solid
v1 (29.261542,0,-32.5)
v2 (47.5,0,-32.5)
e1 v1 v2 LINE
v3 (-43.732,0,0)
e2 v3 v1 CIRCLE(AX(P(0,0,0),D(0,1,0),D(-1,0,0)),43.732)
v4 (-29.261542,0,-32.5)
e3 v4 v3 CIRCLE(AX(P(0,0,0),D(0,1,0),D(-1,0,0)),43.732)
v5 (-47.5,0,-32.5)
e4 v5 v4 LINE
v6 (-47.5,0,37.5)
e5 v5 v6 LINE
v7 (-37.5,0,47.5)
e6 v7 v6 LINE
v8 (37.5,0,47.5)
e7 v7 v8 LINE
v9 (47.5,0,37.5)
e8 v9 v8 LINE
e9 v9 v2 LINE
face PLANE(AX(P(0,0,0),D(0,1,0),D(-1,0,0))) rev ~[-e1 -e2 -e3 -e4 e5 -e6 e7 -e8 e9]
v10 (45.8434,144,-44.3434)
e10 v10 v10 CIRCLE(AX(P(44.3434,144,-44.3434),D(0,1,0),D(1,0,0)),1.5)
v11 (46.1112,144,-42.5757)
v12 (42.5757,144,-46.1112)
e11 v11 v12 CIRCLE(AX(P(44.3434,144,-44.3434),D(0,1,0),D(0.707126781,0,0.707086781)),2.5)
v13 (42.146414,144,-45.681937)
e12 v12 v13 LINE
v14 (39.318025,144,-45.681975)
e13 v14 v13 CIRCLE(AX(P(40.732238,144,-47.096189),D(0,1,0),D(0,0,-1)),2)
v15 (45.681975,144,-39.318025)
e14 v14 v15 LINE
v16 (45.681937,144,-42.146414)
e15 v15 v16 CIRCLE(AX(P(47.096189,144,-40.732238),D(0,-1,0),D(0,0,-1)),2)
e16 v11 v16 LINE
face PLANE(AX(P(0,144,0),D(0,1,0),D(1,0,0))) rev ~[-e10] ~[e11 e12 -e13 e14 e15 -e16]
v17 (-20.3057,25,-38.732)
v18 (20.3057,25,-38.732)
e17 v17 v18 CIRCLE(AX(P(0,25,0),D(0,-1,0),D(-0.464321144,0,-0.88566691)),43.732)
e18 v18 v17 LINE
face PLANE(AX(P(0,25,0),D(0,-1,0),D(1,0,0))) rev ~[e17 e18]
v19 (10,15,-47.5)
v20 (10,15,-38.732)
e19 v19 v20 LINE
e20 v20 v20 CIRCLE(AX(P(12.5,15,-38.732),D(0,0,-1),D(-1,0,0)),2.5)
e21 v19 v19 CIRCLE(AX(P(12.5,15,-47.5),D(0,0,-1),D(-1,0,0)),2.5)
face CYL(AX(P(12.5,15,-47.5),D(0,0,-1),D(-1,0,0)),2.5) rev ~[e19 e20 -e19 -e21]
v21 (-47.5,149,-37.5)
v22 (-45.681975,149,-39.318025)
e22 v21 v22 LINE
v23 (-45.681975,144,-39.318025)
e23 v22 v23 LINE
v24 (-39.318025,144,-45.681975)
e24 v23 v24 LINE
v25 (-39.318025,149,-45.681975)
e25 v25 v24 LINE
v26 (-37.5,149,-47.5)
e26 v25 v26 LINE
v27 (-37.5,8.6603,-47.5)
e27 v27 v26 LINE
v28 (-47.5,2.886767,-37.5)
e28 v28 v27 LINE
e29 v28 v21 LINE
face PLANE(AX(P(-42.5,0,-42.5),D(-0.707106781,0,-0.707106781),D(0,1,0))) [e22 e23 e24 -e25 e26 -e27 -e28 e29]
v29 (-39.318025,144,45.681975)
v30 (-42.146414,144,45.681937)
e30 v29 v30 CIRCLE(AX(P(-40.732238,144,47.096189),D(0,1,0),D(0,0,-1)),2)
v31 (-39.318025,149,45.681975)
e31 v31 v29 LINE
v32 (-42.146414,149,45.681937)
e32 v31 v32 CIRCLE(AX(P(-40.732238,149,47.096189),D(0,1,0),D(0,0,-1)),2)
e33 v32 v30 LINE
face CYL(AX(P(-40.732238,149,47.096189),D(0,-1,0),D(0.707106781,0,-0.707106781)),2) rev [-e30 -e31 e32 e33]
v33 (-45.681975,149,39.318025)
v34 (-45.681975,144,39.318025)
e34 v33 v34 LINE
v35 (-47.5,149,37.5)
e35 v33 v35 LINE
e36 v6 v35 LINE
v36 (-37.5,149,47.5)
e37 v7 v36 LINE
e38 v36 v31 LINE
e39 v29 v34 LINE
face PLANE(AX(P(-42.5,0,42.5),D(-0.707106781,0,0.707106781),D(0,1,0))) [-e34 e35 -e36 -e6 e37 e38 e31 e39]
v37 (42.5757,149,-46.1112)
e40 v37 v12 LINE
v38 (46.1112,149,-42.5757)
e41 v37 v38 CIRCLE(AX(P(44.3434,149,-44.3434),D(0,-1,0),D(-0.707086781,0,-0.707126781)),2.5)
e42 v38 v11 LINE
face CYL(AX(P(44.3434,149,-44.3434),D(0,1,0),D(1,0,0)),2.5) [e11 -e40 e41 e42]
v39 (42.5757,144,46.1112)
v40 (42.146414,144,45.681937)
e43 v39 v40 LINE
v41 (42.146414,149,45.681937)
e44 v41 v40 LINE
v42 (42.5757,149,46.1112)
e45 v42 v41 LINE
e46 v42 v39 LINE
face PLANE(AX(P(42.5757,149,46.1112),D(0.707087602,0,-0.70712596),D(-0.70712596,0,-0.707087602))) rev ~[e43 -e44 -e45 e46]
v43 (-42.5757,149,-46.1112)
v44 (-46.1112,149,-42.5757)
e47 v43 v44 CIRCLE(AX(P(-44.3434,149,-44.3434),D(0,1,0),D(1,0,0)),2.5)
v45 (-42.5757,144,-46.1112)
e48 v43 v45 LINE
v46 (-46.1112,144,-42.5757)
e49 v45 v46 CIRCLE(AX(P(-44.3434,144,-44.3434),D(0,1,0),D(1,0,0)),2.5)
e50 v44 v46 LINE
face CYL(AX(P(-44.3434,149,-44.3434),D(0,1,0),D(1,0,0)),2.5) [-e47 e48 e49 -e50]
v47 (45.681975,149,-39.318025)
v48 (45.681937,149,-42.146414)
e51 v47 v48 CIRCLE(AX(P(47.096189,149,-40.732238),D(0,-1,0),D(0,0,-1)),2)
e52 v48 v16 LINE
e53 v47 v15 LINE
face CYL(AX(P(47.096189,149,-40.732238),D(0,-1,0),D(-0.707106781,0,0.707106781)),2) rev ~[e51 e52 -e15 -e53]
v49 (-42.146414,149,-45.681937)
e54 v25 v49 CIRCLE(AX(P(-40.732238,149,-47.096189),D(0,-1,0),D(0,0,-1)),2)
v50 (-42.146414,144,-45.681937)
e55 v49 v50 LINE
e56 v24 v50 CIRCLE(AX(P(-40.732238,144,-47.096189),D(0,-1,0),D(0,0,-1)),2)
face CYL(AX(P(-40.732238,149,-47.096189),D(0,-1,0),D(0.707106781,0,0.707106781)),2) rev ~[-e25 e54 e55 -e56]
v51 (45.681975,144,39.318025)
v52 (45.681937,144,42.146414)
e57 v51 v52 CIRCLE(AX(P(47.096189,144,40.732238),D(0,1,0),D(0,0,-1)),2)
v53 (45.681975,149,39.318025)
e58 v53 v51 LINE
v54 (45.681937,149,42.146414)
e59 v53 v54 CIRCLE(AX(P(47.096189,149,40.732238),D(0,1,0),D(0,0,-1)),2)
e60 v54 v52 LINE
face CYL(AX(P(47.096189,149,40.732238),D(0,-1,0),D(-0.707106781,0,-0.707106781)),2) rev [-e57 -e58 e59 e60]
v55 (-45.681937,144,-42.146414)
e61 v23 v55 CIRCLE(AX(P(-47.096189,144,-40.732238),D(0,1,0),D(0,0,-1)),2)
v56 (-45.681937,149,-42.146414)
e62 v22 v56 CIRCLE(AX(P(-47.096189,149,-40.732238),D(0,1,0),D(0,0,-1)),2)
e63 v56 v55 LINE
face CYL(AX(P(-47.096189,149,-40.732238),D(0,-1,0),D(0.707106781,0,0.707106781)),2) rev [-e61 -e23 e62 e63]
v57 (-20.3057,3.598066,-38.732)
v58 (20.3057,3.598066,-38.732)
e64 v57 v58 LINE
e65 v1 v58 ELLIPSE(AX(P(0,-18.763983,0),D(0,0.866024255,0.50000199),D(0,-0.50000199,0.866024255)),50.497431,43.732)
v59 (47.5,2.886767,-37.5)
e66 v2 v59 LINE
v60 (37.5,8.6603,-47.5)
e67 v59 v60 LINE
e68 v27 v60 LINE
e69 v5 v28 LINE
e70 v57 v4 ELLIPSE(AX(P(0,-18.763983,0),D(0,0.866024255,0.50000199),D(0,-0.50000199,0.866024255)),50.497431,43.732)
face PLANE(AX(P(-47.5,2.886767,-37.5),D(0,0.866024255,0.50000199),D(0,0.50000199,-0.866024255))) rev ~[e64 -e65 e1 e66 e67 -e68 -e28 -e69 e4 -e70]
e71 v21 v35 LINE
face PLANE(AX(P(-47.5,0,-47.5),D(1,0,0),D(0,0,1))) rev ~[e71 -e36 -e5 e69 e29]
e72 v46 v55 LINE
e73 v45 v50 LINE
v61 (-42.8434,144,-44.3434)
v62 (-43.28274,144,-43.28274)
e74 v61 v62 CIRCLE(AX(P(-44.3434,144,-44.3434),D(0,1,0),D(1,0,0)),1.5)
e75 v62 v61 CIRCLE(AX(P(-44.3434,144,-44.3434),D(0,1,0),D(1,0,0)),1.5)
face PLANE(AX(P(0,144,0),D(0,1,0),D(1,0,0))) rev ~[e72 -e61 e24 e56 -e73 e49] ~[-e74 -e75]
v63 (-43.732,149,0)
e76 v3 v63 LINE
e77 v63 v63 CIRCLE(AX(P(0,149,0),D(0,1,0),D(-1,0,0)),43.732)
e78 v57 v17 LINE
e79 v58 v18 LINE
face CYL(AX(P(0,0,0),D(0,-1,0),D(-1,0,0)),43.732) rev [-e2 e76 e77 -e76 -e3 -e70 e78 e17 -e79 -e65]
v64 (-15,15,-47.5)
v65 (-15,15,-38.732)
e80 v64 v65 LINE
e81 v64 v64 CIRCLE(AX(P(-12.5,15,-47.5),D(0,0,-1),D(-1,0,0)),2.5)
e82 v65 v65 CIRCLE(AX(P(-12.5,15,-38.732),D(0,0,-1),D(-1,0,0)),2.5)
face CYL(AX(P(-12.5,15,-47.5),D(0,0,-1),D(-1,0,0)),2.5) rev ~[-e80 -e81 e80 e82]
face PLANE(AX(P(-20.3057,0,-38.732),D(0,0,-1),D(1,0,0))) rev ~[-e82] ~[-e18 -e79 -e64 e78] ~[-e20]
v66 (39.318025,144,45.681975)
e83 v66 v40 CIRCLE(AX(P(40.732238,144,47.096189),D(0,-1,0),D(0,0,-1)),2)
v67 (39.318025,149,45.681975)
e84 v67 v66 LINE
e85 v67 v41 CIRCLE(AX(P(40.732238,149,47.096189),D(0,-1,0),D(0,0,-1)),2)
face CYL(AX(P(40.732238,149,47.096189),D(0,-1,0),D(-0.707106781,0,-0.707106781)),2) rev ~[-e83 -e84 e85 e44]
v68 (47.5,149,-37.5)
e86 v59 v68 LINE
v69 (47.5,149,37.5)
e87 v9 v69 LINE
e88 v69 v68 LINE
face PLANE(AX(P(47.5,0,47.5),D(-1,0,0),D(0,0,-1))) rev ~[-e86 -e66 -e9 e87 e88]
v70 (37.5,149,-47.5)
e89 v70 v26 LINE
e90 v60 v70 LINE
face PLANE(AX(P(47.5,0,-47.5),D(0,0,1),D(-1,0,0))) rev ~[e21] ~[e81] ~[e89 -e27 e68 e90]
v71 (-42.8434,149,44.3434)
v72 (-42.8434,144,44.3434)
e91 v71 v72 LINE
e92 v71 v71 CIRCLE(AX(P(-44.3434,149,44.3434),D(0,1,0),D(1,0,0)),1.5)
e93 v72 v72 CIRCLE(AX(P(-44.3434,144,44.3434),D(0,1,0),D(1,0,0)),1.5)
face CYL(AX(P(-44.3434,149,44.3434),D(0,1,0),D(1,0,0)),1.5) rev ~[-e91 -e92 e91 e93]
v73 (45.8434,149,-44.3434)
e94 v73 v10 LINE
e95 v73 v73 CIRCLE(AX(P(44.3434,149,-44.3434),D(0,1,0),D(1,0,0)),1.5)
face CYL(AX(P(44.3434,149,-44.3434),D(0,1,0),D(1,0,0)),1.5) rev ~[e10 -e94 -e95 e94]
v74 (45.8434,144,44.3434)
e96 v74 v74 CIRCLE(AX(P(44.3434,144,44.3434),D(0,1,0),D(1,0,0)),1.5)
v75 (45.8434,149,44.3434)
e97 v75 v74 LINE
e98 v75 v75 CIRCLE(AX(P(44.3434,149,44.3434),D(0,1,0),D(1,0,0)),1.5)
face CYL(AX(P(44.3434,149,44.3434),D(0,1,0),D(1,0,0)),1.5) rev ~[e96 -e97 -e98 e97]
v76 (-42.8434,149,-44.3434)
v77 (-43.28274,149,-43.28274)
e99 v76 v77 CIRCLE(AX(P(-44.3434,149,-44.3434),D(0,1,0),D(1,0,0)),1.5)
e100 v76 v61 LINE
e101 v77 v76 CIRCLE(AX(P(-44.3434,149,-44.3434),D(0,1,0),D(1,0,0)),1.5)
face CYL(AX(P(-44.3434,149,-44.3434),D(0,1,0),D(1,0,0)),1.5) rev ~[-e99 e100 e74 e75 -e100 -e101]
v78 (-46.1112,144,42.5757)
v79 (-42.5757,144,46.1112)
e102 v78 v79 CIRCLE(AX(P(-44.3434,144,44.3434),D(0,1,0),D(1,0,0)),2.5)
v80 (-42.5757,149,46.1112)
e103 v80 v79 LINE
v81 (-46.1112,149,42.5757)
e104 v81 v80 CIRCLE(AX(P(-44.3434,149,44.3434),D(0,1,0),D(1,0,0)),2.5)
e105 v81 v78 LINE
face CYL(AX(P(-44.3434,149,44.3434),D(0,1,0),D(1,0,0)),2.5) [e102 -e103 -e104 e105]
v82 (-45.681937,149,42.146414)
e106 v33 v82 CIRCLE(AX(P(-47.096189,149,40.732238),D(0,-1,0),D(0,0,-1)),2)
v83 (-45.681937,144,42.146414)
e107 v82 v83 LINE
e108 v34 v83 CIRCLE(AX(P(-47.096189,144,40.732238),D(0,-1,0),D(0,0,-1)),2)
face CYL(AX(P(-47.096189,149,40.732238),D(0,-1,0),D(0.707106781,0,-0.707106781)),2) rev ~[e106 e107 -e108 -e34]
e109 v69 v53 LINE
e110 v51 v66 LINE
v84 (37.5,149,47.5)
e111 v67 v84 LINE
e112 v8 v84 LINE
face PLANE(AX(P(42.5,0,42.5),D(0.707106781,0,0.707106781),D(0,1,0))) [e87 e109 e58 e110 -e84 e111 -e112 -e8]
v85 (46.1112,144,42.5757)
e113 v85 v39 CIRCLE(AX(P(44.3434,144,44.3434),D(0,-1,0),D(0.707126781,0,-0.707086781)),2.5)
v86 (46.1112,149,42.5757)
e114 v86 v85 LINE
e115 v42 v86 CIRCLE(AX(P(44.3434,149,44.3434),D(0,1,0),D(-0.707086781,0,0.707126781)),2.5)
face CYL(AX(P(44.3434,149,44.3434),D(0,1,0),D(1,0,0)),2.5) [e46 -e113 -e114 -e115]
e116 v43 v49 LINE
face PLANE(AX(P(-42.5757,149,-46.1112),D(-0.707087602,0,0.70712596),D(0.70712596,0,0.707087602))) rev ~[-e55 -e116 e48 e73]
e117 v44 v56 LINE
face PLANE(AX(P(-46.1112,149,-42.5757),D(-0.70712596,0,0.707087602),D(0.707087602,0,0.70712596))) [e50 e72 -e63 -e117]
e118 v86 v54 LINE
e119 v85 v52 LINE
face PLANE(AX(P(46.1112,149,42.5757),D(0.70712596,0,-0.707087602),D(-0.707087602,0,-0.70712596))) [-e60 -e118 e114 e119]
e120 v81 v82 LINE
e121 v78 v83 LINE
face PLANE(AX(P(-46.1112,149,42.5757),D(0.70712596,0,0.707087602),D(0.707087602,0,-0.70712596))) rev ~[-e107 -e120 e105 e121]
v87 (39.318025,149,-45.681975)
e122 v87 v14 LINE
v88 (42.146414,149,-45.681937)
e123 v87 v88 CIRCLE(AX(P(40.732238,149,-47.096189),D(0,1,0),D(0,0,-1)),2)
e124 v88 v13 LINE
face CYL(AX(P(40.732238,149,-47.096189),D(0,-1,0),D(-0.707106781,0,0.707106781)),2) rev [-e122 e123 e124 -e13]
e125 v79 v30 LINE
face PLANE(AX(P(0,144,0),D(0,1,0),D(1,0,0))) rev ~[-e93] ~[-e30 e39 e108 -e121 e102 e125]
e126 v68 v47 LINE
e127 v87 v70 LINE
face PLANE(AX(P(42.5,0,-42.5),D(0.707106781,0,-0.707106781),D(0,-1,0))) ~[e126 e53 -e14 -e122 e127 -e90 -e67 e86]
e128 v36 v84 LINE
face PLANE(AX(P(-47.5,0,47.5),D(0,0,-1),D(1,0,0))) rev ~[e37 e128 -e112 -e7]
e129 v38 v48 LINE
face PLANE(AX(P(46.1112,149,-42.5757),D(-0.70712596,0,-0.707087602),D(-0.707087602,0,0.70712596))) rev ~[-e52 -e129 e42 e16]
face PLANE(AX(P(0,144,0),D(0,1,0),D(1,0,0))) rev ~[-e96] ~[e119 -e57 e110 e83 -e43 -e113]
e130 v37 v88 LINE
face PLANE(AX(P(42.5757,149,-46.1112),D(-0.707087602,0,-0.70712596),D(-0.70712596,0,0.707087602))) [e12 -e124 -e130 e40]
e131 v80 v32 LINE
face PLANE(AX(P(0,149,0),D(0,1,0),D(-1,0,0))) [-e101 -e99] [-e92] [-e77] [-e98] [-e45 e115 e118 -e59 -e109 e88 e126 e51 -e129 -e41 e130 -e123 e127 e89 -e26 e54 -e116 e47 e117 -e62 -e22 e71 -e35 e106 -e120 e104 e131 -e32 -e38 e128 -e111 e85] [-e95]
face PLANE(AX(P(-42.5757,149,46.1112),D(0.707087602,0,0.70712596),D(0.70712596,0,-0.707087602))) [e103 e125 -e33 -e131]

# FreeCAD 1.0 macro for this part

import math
import FreeCAD as App
import Part
import Sketcher

V = App.Vector
Q = App.Units.Quantity


def edges_at(feature, points):
    """Names of the edges that pass closest to the given points."""
    edges = feature.Shape.Edges
    near = lambda p: min(range(len(edges)), key=lambda i: edges[i].distToShape(Part.Vertex(*p))[0])
    return sorted({f"Edge{near(p) + 1}" for p in points})

doc = App.newDocument("Part")
body = doc.addObject("PartDesign::Body", "Body")

# Sketch on XZ plane
sketch1 = body.newObject("Sketcher::SketchObject", "Sketch")
sketch1.AttachmentSupport = (doc.getObject("XZ_Plane"), [""])
sketch1.MapMode = "FlatFace"
sketch1.addGeometry([
    Part.LineSegment(V(48, 48, 0), V(48, -48, 0)),  # 0
    Part.LineSegment(V(48, -48, 0), V(-48, -48, 0)),  # 1
    Part.LineSegment(V(-48, -48, 0), V(-48, 48, 0)),  # 2
    Part.LineSegment(V(-48, 48, 0), V(48, 48, 0)),  # 3
    Part.Circle(V(0, 0, 0), V(0, 0, 1), 44),  # 4
], False)
sketch1.addConstraint([
    Sketcher.Constraint("Coincident", 0, 2, 1, 1),
    Sketcher.Constraint("Coincident", 1, 2, 2, 1),
    Sketcher.Constraint("Coincident", 2, 2, 3, 1),
    Sketcher.Constraint("Coincident", 3, 2, 0, 1),
    Sketcher.Constraint("Vertical", 0),
    Sketcher.Constraint("Horizontal", 1),
    Sketcher.Constraint("Vertical", 2),
    Sketcher.Constraint("Horizontal", 3),
    Sketcher.Constraint("Coincident", 4, 3, -1, 1),
    Sketcher.Constraint("Symmetric", 0, 2, 2, 2, -1, 1),
    Sketcher.Constraint("Equal", 3, 0),
    Sketcher.Constraint("DistanceX", 1, 2, 1, 1, Q("95 mm")),
    Sketcher.Constraint("Diameter", 4, Q("87.464 mm")),
])
pad1 = body.newObject("PartDesign::Pad", "Pad")
pad1.Profile = sketch1
pad1.Length = 149
pad1.Reversed = True
doc.recompute()

chamfer = body.newObject("PartDesign::Chamfer", "Chamfer")
chamfer.Base = (pad1, edges_at(pad1, [
    (47.5, 74.5, -47.5),
    (47.5, 74.5, 47.5),
    (-47.5, 74.5, 47.5),
    (-47.5, 74.5, -47.5),
]))
chamfer.Size = 10

# Sketch on XZ plane
sketch2 = body.newObject("Sketcher::SketchObject", "Sketch001")
sketch2.AttachmentSupport = (doc.getObject("XZ_Plane"), [""])
sketch2.MapMode = "FlatFace"
sketch2.AttachmentOffset = App.Placement(V(0, 0, -149), App.Rotation())
sketch2.addGeometry([
    Part.LineSegment(V(-46.1, -42.6, 0), V(-44.3, -40.7, 0)),  # 0
    Part.LineSegment(V(-44.3, -40.7, 0), V(-40.7, -44.3, 0)),  # 1
    Part.LineSegment(V(-40.7, -44.3, 0), V(-42.6, -46.1, 0)),  # 2
    Part.ArcOfCircle(Part.Circle(V(-44.3, -44.3, 0), V(0, 0, 1), 2.5), math.radians(135), math.radians(315)),  # 3
    Part.Circle(V(-44.3, -44.3, 0), V(0, 0, 1), 1.5),  # 4
    Part.LineSegment(V(-40.7, 44.3, 0), V(-44.3, 40.7, 0)),  # 5
    Part.LineSegment(V(-44.3, 40.7, 0), V(-46.1, 42.6, 0)),  # 6
    Part.ArcOfCircle(Part.Circle(V(-44.3, 44.3, 0), V(0, 0, 1), 2.5), math.radians(45), math.radians(225)),  # 7
    Part.LineSegment(V(-42.6, 46.1, 0), V(-40.7, 44.3, 0)),  # 8
    Part.Circle(V(-44.3, 44.3, 0), V(0, 0, 1), 1.5),  # 9
    Part.LineSegment(V(42.6, -46.1, 0), V(40.7, -44.3, 0)),  # 10
    Part.LineSegment(V(40.7, -44.3, 0), V(44.3, -40.7, 0)),  # 11
    Part.LineSegment(V(44.3, -40.7, 0), V(46.1, -42.6, 0)),  # 12
    Part.ArcOfCircle(Part.Circle(V(44.3, -44.3, 0), V(0, 0, 1), 2.5), math.radians(-135), math.radians(45)),  # 13
    Part.Circle(V(44.3, -44.3, 0), V(0, 0, 1), 1.5),  # 14
    Part.LineSegment(V(44.3, 40.7, 0), V(40.7, 44.3, 0)),  # 15
    Part.LineSegment(V(40.7, 44.3, 0), V(42.6, 46.1, 0)),  # 16
    Part.ArcOfCircle(Part.Circle(V(44.3, 44.3, 0), V(0, 0, 1), 2.5), math.radians(-45), math.radians(135)),  # 17
    Part.LineSegment(V(46.1, 42.6, 0), V(44.3, 40.7, 0)),  # 18
    Part.Circle(V(44.3, 44.3, 0), V(0, 0, 1), 1.5),  # 19
], False)
sketch2.addConstraint([
    Sketcher.Constraint("Coincident", 0, 2, 1, 1),
    Sketcher.Constraint("Coincident", 1, 2, 2, 1),
    Sketcher.Constraint("Tangent", 2, 2, 3, 2),
    Sketcher.Constraint("Tangent", 3, 1, 0, 1),
    Sketcher.Constraint("Coincident", 5, 2, 6, 1),
    Sketcher.Constraint("Tangent", 6, 2, 7, 2),
    Sketcher.Constraint("Tangent", 7, 1, 8, 1),
    Sketcher.Constraint("Coincident", 8, 2, 5, 1),
    Sketcher.Constraint("Coincident", 10, 2, 11, 1),
    Sketcher.Constraint("Coincident", 11, 2, 12, 1),
    Sketcher.Constraint("Tangent", 12, 2, 13, 2),
    Sketcher.Constraint("Tangent", 13, 1, 10, 1),
    Sketcher.Constraint("Coincident", 15, 2, 16, 1),
    Sketcher.Constraint("Tangent", 16, 2, 17, 2),
    Sketcher.Constraint("Tangent", 17, 1, 18, 1),
    Sketcher.Constraint("Coincident", 18, 2, 15, 1),
    Sketcher.Constraint("Coincident", 4, 3, 3, 3),
    Sketcher.Constraint("Coincident", 9, 3, 7, 3),
    Sketcher.Constraint("Coincident", 14, 3, 13, 3),
    Sketcher.Constraint("Coincident", 19, 3, 17, 3),
    Sketcher.Constraint("Equal", 3, 7),
    Sketcher.Constraint("Equal", 4, 9),
    Sketcher.Constraint("Equal", 7, 13),
    Sketcher.Constraint("Equal", 9, 14),
    Sketcher.Constraint("Equal", 13, 17),
    Sketcher.Constraint("Equal", 14, 19),
    Sketcher.Constraint("Symmetric", 7, 3, 13, 3, -1, 1),
    Sketcher.Constraint("Symmetric", 3, 3, 17, 3, -1, 1),
    Sketcher.Constraint("Symmetric", 8, 2, 10, 2, -1, 1),
    Sketcher.Constraint("Symmetric", 5, 2, 11, 2, -1, 1),
    Sketcher.Constraint("Symmetric", 1, 2, 15, 2, -1, 1),
    Sketcher.Constraint("Symmetric", 0, 2, 18, 2, -1, 1),
    Sketcher.Constraint("Symmetric", 3, 3, 13, 3, -2),
    Sketcher.Constraint("Symmetric", 1, 2, 10, 2, -2),
    Sketcher.Constraint("Symmetric", 0, 2, 11, 2, -2),
    Sketcher.Constraint("Perpendicular", 0, 1),
    Sketcher.Constraint("Perpendicular", 1, 2),
    Sketcher.Constraint("Parallel", 2, 5),
    Sketcher.Constraint("Diameter", 4, Q("3 mm")),
    Sketcher.Constraint("Radius", 3, Q("2.5 mm")),
    Sketcher.Constraint("Distance", 0, Q("2.607 mm")),
    Sketcher.Constraint("DistanceY", 1, 2, 5, 2, Q("85 mm")),
    Sketcher.Constraint("DistanceX", 0, 2, 10, 2, Q("85 mm")),
])
pad2 = body.newObject("PartDesign::Pad", "Pad001")
pad2.Profile = sketch2
pad2.Length = 5
doc.recompute()

fillet = body.newObject("PartDesign::Fillet", "Fillet")
fillet.Base = (pad2, edges_at(pad2, [
    (44.268, 146.5, -40.732),
    (40.732, 146.5, -44.268),
    (44.268, 146.5, 40.732),
    (40.732, 146.5, 44.268),
    (-40.732, 146.5, 44.268),
    (-44.268, 146.5, 40.732),
    (-44.268, 146.5, -40.732),
    (-40.732, 146.5, -44.268),
]))
fillet.Radius = 2

# Sketch on XZ plane
sketch3 = body.newObject("Sketcher::SketchObject", "Sketch002")
sketch3.AttachmentSupport = (doc.getObject("XZ_Plane"), [""])
sketch3.MapMode = "FlatFace"
sketch3.addGeometry([
    Part.ArcOfCircle(Part.Circle(V(0, 0, 0), V(0, 0, 1), 44), math.radians(-118), math.radians(-62)),
    Part.LineSegment(V(-20, -39, 0), V(20, -39, 0)),
], False)
sketch3.addConstraint([
    Sketcher.Constraint("Coincident", 0, 1, 1, 1),
    Sketcher.Constraint("Coincident", 1, 2, 0, 2),
    Sketcher.Constraint("Horizontal", 1),
    Sketcher.Constraint("Coincident", 0, 3, -1, 1),
    Sketcher.Constraint("Radius", 0, Q("43.732 mm")),
    Sketcher.Constraint("DistanceX", 1, 1, 1, 2, Q("40.6114 mm")),
])
pad3 = body.newObject("PartDesign::Pad", "Pad002")
pad3.Profile = sketch3
pad3.Length = 25
pad3.Reversed = True

# Sketch on XY plane
sketch4 = body.newObject("Sketcher::SketchObject", "Sketch003")
sketch4.AttachmentSupport = (doc.getObject("XY_Plane"), [""])
sketch4.MapMode = "FlatFace"
sketch4.AttachmentOffset = App.Placement(V(0, 0, -47.5), App.Rotation())
sketch4.addGeometry([
    Part.Circle(V(12.5, 15, 0), V(0, 0, 1), 2.5),
    Part.Circle(V(-12.5, 15, 0), V(0, 0, 1), 2.5),
], False)
sketch4.addConstraint([
    Sketcher.Constraint("Equal", 0, 1),
    Sketcher.Constraint("Symmetric", 0, 3, 1, 3, -2),
    Sketcher.Constraint("Diameter", 0, Q("5 mm")),
    Sketcher.Constraint("DistanceY", -1, 1, 0, 3, Q("15 mm")),
    Sketcher.Constraint("DistanceX", -1, 1, 0, 3, Q("12.5 mm")),
])
pocket1 = body.newObject("PartDesign::Pocket", "Pocket")
pocket1.Profile = sketch4
pocket1.Length = 30
pocket1.Reversed = True

# Sketch on YZ plane
sketch5 = body.newObject("Sketcher::SketchObject", "Sketch004")
sketch5.AttachmentSupport = (doc.getObject("YZ_Plane"), [""])
sketch5.MapMode = "FlatFace"
sketch5.AttachmentOffset = App.Placement(V(0, 0, -47.5), App.Rotation())
sketch5.addGeometry([
    Part.LineSegment(V(0, -48, 0), V(0, -32, 0)),
    Part.LineSegment(V(0, -32, 0), V(9, -48, 0)),
    Part.LineSegment(V(9, -48, 0), V(0, -48, 0)),
], False)
sketch5.addConstraint([
    Sketcher.Constraint("Coincident", 0, 2, 1, 1),
    Sketcher.Constraint("Coincident", 1, 2, 2, 1),
    Sketcher.Constraint("Coincident", 2, 2, 0, 1),
    Sketcher.Constraint("Vertical", 0),
    Sketcher.Constraint("Horizontal", 2),
    Sketcher.Constraint("PointOnObject", 0, 2, -2),
    Sketcher.Constraint("DistanceY", 0, 1, 0, 2, Q("15 mm")),
    Sketcher.Constraint("Angle", 1, Q("-59.9999 deg")),
    Sketcher.Constraint("DistanceY", 0, 2, -1, 1, Q("32.5 mm")),
])
pocket2 = body.newObject("PartDesign::Pocket", "Pocket001")
pocket2.Profile = sketch5
pocket2.Type = "ThroughAll"
pocket2.Reversed = True

doc.recompute()
